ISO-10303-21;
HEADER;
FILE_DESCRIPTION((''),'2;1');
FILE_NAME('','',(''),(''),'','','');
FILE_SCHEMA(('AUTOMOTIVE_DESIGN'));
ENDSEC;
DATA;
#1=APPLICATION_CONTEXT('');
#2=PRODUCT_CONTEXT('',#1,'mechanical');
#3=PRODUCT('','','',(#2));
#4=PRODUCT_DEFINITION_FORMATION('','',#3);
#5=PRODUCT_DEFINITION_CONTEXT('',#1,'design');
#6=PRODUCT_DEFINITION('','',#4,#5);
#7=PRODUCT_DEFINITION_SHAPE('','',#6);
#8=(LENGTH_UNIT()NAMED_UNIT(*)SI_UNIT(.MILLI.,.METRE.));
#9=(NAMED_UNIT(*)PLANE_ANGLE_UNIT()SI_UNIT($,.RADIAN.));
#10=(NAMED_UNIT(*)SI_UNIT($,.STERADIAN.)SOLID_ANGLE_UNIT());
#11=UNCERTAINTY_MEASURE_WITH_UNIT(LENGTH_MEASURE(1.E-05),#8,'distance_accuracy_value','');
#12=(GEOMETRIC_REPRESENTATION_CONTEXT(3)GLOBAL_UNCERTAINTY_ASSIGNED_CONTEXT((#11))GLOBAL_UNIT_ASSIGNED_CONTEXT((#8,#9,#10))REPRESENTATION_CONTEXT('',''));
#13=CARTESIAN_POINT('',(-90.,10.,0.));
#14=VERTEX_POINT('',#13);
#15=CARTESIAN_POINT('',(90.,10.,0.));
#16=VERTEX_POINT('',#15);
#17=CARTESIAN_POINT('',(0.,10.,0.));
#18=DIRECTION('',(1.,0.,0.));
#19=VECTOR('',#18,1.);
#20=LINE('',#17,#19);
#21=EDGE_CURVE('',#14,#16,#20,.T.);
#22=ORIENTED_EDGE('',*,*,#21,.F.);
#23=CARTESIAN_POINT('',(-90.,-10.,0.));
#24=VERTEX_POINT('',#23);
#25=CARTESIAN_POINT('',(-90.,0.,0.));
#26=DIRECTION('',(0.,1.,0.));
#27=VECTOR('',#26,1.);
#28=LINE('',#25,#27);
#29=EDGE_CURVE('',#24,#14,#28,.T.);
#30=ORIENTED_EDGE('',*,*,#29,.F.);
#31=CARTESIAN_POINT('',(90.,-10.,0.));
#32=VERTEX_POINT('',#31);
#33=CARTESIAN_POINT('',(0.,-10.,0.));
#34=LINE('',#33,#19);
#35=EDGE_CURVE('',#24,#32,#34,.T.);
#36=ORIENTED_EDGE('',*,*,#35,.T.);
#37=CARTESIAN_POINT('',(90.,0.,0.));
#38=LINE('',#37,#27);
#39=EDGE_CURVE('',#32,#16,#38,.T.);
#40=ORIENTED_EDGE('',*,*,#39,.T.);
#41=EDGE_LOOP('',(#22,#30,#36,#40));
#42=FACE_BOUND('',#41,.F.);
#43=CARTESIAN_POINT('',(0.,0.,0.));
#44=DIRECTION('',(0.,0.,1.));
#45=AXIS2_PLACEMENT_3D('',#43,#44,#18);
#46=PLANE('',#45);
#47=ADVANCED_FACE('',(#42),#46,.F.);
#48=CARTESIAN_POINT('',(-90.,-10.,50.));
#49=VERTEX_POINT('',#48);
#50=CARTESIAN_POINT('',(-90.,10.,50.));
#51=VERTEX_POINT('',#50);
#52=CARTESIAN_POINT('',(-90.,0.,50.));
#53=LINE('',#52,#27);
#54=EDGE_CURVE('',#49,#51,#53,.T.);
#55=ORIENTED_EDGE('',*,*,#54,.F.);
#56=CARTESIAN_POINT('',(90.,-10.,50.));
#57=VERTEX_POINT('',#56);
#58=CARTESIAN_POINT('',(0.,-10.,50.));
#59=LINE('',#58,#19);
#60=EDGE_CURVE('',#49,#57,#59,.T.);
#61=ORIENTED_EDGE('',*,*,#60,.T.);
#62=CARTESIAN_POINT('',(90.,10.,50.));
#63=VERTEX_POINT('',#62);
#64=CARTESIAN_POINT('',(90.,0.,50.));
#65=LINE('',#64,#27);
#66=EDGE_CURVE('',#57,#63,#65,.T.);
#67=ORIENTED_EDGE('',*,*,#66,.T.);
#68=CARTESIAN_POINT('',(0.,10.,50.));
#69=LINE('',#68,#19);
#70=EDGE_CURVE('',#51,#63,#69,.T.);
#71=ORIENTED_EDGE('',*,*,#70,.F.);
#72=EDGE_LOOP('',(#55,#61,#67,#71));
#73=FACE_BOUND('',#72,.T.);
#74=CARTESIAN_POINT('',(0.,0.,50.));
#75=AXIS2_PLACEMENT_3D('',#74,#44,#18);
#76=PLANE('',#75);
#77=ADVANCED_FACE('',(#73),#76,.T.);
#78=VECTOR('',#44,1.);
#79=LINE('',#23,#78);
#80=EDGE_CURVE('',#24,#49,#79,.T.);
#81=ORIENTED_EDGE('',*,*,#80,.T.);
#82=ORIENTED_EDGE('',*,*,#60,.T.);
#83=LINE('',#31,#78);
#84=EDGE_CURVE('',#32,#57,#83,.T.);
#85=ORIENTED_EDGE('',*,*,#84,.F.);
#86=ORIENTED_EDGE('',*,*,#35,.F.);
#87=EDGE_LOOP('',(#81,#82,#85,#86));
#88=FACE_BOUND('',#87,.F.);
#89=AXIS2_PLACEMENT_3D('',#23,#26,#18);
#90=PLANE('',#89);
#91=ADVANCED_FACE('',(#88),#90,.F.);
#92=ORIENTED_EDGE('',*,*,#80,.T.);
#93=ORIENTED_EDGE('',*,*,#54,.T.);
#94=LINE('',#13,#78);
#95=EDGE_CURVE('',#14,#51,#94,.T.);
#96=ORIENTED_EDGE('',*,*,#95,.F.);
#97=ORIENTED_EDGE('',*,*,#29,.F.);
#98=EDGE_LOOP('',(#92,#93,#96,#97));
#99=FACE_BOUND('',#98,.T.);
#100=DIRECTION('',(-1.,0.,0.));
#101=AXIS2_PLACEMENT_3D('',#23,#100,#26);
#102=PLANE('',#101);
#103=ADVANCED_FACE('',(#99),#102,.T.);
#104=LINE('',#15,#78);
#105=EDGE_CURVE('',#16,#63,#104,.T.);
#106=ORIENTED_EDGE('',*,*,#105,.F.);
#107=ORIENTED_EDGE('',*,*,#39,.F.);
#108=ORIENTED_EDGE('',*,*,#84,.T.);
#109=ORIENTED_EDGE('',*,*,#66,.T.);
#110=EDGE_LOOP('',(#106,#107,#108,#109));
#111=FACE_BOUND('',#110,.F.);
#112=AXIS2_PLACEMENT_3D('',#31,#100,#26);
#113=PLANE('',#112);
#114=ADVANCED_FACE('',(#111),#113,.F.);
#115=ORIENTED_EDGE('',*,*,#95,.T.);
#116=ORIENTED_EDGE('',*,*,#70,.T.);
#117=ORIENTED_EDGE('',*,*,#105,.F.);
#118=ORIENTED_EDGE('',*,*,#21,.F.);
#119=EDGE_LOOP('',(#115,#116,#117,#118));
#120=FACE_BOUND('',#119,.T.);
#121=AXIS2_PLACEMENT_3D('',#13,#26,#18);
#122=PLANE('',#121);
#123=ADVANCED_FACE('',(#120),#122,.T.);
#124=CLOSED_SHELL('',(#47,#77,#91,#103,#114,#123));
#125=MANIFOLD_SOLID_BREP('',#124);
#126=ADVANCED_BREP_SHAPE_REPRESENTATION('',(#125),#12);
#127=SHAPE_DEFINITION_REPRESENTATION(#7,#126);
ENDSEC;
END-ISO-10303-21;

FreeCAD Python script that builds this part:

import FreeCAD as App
import Part
import Sketcher
from FreeCAD import Vector
Q = App.Units.Quantity

doc = App.newDocument("Part")
body = doc.addObject("PartDesign::Body", "Body")

# Sketch on XY plane
sketch1 = doc.addObject("Sketcher::SketchObject", "Sketch")
body.addObject(sketch1)
sketch1.AttachmentSupport = (doc.XY_Plane, [""])
sketch1.MapMode = "FlatFace"
sketch1.addGeometry([
    Part.LineSegment(Vector(-90, 10, 0), Vector(-90, -10, 0)),
    Part.LineSegment(Vector(-90, -10, 0), Vector(90, -10, 0)),
    Part.LineSegment(Vector(90, -10, 0), Vector(90, 10, 0)),
    Part.LineSegment(Vector(90, 10, 0), Vector(-90, 10, 0)),
], False)
sketch1.addConstraint([
    Sketcher.Constraint("Coincident", 0, 2, 1, 1),
    Sketcher.Constraint("Coincident", 1, 2, 2, 1),
    Sketcher.Constraint("Coincident", 2, 2, 3, 1),
    Sketcher.Constraint("Coincident", 3, 2, 0, 1),
    Sketcher.Constraint("Vertical", 0),
    Sketcher.Constraint("Horizontal", 1),
    Sketcher.Constraint("Vertical", 2),
    Sketcher.Constraint("Horizontal", 3),
    Sketcher.Constraint("Symmetric", 0, 2, 2, 2, -1, 1),
    Sketcher.Constraint("DistanceX", 1, 1, 1, 2, Q("180 mm")),
    Sketcher.Constraint("DistanceY", 0, 2, 0, 1, Q("20 mm")),
])
pad1 = doc.addObject("PartDesign::Pad", "Pad")
body.addObject(pad1)
pad1.Profile = sketch1
pad1.Length = 50

doc.recompute()
